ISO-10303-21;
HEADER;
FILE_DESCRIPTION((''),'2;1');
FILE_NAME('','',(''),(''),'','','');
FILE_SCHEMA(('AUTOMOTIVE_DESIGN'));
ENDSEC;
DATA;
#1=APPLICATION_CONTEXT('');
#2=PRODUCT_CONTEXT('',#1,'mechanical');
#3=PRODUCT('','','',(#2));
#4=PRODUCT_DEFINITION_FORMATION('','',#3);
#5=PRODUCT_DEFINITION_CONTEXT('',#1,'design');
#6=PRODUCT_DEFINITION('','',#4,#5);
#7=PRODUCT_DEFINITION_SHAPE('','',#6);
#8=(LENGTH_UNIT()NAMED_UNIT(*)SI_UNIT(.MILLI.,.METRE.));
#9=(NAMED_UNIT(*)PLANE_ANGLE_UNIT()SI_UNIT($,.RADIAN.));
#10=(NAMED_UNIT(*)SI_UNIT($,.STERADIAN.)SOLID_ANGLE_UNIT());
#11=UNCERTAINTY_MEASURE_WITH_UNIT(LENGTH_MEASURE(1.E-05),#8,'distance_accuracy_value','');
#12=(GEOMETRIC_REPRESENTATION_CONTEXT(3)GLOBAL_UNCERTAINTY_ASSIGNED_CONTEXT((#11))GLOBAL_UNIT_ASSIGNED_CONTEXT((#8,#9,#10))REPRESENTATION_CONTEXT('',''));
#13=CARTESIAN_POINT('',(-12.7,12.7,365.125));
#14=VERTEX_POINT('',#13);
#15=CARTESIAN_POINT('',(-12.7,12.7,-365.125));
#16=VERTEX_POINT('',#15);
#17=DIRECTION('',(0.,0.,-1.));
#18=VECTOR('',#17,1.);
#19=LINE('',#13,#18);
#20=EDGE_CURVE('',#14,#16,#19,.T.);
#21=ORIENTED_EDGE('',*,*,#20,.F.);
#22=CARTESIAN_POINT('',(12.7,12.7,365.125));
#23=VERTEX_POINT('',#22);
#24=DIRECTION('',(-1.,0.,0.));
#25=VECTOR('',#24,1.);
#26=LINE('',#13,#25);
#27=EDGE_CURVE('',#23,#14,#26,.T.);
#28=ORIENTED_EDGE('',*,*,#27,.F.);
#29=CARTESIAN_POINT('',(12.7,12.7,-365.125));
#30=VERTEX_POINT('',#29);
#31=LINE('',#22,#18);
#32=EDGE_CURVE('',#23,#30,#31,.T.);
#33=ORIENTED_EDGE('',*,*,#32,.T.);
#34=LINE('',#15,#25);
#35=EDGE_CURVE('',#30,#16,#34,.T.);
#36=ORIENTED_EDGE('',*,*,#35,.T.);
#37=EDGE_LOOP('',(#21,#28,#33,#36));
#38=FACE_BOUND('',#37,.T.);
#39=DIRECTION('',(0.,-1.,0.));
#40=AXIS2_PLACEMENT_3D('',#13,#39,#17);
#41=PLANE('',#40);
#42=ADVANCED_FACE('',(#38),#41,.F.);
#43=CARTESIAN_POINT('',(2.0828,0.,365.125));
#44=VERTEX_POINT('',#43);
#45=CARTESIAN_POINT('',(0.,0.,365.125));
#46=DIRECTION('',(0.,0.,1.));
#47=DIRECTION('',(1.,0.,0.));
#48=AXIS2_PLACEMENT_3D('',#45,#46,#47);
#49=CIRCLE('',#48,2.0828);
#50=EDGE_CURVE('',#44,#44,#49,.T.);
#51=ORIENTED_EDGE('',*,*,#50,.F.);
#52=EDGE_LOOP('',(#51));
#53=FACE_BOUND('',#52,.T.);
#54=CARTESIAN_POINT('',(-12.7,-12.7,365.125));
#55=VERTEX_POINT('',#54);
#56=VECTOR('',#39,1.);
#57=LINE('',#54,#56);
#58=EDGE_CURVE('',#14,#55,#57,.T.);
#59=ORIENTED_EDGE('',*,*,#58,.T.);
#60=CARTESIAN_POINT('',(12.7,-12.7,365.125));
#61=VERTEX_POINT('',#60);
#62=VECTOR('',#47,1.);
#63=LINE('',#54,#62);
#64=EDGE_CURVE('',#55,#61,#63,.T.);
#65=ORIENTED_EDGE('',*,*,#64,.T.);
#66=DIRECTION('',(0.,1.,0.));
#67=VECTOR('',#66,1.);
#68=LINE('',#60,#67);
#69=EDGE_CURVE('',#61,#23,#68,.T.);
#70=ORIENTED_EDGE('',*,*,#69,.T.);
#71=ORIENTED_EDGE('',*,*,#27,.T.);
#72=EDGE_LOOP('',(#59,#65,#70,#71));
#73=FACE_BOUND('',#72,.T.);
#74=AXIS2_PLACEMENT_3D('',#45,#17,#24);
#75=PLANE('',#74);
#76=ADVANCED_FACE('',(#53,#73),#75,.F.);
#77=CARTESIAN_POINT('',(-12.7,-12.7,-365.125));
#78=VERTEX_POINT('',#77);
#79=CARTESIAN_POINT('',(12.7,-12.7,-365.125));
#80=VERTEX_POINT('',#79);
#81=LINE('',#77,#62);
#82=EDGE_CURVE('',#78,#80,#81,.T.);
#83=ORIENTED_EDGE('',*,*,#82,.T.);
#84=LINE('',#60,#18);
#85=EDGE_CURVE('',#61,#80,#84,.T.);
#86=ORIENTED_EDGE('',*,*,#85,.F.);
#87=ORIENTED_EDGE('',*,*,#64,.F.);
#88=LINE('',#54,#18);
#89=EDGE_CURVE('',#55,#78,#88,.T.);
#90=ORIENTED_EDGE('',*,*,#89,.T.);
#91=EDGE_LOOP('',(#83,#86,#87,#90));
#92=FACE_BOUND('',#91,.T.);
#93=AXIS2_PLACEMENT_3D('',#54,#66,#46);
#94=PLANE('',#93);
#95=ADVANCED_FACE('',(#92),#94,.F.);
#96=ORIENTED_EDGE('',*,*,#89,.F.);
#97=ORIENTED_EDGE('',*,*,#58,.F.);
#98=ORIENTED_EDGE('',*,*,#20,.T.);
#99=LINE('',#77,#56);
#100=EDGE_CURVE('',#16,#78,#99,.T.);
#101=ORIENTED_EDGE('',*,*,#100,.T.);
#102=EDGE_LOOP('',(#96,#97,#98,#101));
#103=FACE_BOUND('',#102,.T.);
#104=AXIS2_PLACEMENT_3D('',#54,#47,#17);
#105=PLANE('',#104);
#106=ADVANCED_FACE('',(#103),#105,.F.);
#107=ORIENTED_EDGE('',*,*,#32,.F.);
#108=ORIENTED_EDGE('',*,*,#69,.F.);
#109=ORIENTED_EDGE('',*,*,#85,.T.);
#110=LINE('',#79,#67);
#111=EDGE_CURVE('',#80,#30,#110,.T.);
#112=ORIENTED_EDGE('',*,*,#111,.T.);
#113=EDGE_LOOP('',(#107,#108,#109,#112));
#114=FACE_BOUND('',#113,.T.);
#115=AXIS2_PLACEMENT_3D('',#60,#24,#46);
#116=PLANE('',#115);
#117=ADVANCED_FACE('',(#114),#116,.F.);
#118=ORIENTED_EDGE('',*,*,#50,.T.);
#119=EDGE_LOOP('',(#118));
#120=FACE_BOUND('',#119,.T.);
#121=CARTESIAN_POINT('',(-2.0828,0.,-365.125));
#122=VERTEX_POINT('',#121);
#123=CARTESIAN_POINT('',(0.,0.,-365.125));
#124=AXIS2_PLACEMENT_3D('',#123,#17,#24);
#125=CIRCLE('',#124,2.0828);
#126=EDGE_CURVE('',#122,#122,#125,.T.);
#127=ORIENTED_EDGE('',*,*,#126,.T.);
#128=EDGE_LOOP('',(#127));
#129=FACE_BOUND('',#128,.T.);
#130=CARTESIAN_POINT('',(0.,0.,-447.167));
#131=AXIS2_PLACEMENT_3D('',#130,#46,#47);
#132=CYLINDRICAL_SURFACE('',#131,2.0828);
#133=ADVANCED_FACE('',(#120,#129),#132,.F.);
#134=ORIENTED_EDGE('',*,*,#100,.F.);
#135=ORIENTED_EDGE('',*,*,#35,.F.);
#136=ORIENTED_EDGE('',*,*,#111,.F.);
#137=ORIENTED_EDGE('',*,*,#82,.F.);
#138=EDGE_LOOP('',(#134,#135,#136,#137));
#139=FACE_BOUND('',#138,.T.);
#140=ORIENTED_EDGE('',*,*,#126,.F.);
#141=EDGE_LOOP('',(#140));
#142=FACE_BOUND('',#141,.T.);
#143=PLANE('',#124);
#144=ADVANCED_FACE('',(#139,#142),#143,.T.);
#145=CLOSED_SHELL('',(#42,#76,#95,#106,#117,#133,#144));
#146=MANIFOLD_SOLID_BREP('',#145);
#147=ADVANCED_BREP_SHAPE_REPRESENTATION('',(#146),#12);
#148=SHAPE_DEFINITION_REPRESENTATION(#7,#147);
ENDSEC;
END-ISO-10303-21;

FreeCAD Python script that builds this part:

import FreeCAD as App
import Part
import Sketcher
Q = App.Units.Quantity


def add_polygon(sketch, points):
    """Adds a closed chain of lines whose ends are joined by coincident constraints."""
    first, n = sketch.GeometryCount, len(points)
    for a, b in zip(points, points[1:] + points[:1]):
        sketch.addGeometry(Part.LineSegment(App.Vector(*a, 0), App.Vector(*b, 0)), False)
    for i in range(n):
        sketch.addConstraint(Sketcher.Constraint("Coincident", first + i, 2, first + (i + 1) % n, 1))

doc = App.newDocument("Part")
body = doc.addObject("PartDesign::Body", "Body")

# Sketch on XY plane
sketch1 = doc.addObject("Sketcher::SketchObject", "Sketch")
body.addObject(sketch1)
sketch1.AttachmentSupport = (doc.XY_Plane, [""])
sketch1.MapMode = "FlatFace"
add_polygon(sketch1, [(-13, 13), (-13, -13), (13, -13), (13, 13)])  # lines 0-3
sketch1.addConstraint(Sketcher.Constraint("Vertical", 0))
sketch1.addConstraint(Sketcher.Constraint("Horizontal", 1))
sketch1.addConstraint(Sketcher.Constraint("Vertical", 2))
sketch1.addConstraint(Sketcher.Constraint("Horizontal", 3))
sketch1.addConstraint(Sketcher.Constraint("Symmetric", 0, 2, 2, 2, -1, 1))
sketch1.addConstraint(Sketcher.Constraint("Equal", 3, 0))
sketch1.addConstraint(Sketcher.Constraint("DistanceX", 1, 1, 1, 2, Q("1 in")))
pad1 = doc.addObject("PartDesign::Pad", "Pad")
body.addObject(pad1)
pad1.Profile = sketch1
pad1.Length = Q("28.75 in")
pad1.Midplane = True

# Sketch on XY plane
sketch2 = doc.addObject("Sketcher::SketchObject", "Sketch001")
body.addObject(sketch2)
sketch2.AttachmentSupport = (doc.XY_Plane, [""])
sketch2.MapMode = "FlatFace"
sketch2.AttachmentOffset = App.Placement(App.Vector(0, 0, 14.375 * 25.4), App.Rotation())
sketch2.addGeometry(Part.Circle(App.Vector(0, 0, 0), App.Vector(0, 0, 1), 2.1), False)
sketch2.addConstraint(Sketcher.Constraint("Coincident", 0, 3, -1, 1))
sketch2.addConstraint(Sketcher.Constraint("Diameter", 0, Q("0.164 in")))
pocket1 = doc.addObject("PartDesign::Pocket", "Pocket")
body.addObject(pocket1)
pocket1.Profile = sketch2
pocket1.Length = Q("31.98 in")

doc.recompute()
